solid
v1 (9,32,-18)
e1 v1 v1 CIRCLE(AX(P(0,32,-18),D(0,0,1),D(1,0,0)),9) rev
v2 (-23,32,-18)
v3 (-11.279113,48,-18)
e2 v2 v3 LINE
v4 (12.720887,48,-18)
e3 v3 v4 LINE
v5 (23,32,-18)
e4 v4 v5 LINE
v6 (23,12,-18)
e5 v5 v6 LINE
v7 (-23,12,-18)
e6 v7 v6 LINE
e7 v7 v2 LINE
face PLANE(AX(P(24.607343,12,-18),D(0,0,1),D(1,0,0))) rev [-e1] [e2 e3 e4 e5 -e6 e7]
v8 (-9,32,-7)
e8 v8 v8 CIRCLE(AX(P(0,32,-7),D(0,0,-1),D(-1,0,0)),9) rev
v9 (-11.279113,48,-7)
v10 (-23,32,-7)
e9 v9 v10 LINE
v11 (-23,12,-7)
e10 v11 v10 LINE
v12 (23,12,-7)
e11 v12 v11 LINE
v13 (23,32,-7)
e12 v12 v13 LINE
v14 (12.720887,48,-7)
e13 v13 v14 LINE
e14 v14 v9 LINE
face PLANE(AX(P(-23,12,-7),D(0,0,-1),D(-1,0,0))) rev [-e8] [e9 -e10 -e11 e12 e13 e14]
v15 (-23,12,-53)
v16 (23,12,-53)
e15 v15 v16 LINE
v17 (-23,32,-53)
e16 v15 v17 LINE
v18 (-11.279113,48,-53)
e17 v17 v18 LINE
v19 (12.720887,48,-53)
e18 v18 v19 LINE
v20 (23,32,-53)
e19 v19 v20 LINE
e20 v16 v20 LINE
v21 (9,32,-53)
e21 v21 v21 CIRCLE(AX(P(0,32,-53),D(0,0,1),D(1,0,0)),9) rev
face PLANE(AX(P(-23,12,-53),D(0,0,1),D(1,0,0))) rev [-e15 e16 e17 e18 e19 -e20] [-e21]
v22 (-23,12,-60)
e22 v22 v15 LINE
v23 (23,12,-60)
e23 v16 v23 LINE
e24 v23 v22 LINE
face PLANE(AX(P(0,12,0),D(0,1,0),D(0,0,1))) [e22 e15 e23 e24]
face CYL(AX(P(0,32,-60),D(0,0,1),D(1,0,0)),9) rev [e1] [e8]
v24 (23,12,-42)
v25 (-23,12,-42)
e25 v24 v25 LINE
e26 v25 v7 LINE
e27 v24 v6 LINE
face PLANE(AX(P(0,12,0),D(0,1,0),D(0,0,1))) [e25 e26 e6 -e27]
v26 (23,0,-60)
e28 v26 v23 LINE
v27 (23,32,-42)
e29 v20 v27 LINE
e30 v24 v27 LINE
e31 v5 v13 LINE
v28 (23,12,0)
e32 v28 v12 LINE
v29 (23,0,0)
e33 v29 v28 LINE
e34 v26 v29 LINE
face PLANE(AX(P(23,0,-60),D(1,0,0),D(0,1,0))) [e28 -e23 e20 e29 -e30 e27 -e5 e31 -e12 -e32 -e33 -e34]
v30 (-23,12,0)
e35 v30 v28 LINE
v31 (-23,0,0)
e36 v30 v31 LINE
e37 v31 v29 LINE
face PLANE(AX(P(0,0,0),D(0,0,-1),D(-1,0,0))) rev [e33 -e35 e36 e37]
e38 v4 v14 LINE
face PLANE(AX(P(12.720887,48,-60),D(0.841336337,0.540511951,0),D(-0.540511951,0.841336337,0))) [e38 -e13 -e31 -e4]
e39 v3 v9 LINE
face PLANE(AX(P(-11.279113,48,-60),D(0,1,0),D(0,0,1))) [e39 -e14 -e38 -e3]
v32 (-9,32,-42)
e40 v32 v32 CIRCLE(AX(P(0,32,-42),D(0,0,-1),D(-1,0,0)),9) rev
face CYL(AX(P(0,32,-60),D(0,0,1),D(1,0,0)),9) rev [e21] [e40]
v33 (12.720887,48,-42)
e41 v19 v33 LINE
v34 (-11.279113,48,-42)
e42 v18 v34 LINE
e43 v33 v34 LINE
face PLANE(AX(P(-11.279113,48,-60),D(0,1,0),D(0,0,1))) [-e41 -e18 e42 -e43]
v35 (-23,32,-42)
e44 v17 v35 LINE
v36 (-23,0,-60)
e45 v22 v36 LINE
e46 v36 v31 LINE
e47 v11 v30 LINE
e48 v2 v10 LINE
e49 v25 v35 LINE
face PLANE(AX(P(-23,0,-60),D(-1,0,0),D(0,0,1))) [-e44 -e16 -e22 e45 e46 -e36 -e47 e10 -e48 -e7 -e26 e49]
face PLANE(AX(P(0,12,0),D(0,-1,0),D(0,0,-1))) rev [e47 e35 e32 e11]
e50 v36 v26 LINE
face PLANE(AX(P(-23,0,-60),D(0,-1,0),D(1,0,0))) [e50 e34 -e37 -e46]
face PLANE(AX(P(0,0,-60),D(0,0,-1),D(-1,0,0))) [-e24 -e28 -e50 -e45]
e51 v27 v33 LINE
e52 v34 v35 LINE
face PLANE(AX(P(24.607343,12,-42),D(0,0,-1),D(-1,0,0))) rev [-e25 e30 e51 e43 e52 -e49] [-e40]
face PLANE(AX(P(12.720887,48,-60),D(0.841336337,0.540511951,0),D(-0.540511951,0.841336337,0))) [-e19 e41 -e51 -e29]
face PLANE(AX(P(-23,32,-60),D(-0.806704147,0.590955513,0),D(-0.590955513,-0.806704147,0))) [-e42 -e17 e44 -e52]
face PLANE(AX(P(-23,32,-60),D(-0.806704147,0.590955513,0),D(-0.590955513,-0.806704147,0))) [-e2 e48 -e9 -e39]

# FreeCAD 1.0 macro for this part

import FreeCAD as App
import Part
import Sketcher
from FreeCAD import Vector
Q = App.Units.Quantity

doc = App.newDocument("Part")
params = doc.addObject("Spreadsheet::Sheet", "Params")
for row, (alias, value) in enumerate([
    ("sketch1_diameter", "18 mm"),
    ("sketch1_width", "46 mm"),
    ("sketch1_width2", "24 mm"),
    ("sketch1_height", "32 mm"),
    ("pad1_length", "60 mm"),
    ("sketch2_width", "46 mm"),
    ("sketch2_height", "7 mm"),
    ("pocket1_length", "36 mm"),
    ("sketch3_height", "24 mm"),
    ("pocket2_length", "36 mm"),
], start=1):
    params.set(f"A{row}", alias)
    params.set(f"B{row}", "=" + value)
    params.setAlias(f"B{row}", alias)

body = doc.addObject("PartDesign::Body", "Body")

sketch1 = body.newObject("Sketcher::SketchObject", "Sketch")
sketch1.AttachmentSupport = (doc.getObject("XY_Plane"), [""])
sketch1.MapMode = "FlatFace"
sketch1.addGeometry(Part.LineSegment(Vector(-23, 0, 0), Vector(23, 0, 0)), False)
sketch1.addGeometry(Part.LineSegment(Vector(23, 0, 0), Vector(23, 32, 0)), False)
sketch1.addGeometry(Part.LineSegment(Vector(23, 32, 0), Vector(12.720887, 48, 0)), False)
sketch1.addGeometry(Part.LineSegment(Vector(12.720887, 48, 0), Vector(-11.279113, 48, 0)), False)
sketch1.addGeometry(Part.LineSegment(Vector(-11.279113, 48, 0), Vector(-23, 32, 0)), False)
sketch1.addGeometry(Part.LineSegment(Vector(-23, 32, 0), Vector(-23, 0, 0)), False)
sketch1.addGeometry(Part.Circle(Vector(0, 32, 0), Vector(0, 0, 1), 9), False)
sketch1.addConstraint(Sketcher.Constraint("Coincident", 0, 2, 1, 1))
sketch1.addConstraint(Sketcher.Constraint("Coincident", 1, 2, 2, 1))
sketch1.addConstraint(Sketcher.Constraint("Coincident", 2, 2, 3, 1))
sketch1.addConstraint(Sketcher.Constraint("Coincident", 3, 2, 4, 1))
sketch1.addConstraint(Sketcher.Constraint("Coincident", 4, 2, 5, 1))
sketch1.addConstraint(Sketcher.Constraint("Coincident", 5, 2, 0, 1))
sketch1.addConstraint(Sketcher.Constraint("Horizontal", 0))
sketch1.addConstraint(Sketcher.Constraint("Vertical", 1))
sketch1.addConstraint(Sketcher.Constraint("Horizontal", 3))
sketch1.addConstraint(Sketcher.Constraint("Vertical", 5))
sketch1.addConstraint(Sketcher.Constraint("Symmetric", 0, 2, 5, 2, -1, 1))
sketch1.addConstraint(Sketcher.Constraint("PointOnObject", 6, 3, -2))
sketch1.addConstraint(Sketcher.Constraint("Horizontal", 6, 3, 1, 2))
sketch1.addConstraint(Sketcher.Constraint("Horizontal", 1, 2, 4, 2))
sketch1.addConstraint(Sketcher.Constraint("Diameter", 6, Q("18 mm")))
sketch1.addConstraint(Sketcher.Constraint("DistanceX", 0, 1, 0, 2, Q("46 mm")))
sketch1.addConstraint(Sketcher.Constraint("DistanceX", 3, 2, 3, 1, Q("24 mm")))
sketch1.addConstraint(Sketcher.Constraint("DistanceY", 1, 1, 1, 2, Q("32 mm")))
sketch1.addConstraint(Sketcher.Constraint("DistanceY", -1, 1, 2, 2, Q("48 mm")))
sketch1.addConstraint(Sketcher.Constraint("Distance", 4, Q("19.833789 mm")))
sketch1.setExpression("Constraints[14]", "Params.sketch1_diameter")
sketch1.setExpression("Constraints[15]", "Params.sketch1_width")
sketch1.setExpression("Constraints[16]", "Params.sketch1_width2")
sketch1.setExpression("Constraints[17]", "Params.sketch1_height")
pad1 = body.newObject("PartDesign::Pad", "Pad")
pad1.Profile = sketch1
pad1.setExpression("Length", "Params.pad1_length")
pad1.Reversed = True

sketch2 = body.newObject("Sketcher::SketchObject", "Sketch001")
sketch2.AttachmentSupport = (doc.getObject("XZ_Plane"), [""])
sketch2.MapMode = "FlatFace"
sketch2.AttachmentOffset = App.Placement(Vector(0, 0, -48), App.Rotation())
sketch2.addGeometry(Part.LineSegment(Vector(-23, -7, 0), Vector(-23, 0, 0)), False)
sketch2.addGeometry(Part.LineSegment(Vector(-23, 0, 0), Vector(23, 0, 0)), False)
sketch2.addGeometry(Part.LineSegment(Vector(23, 0, 0), Vector(23, -7, 0)), False)
sketch2.addGeometry(Part.LineSegment(Vector(23, -7, 0), Vector(-23, -7, 0)), False)
sketch2.addGeometry(Part.LineSegment(Vector(-23, -60, 0), Vector(-23, -53, 0)), False)
sketch2.addGeometry(Part.LineSegment(Vector(-23, -53, 0), Vector(23, -53, 0)), False)
sketch2.addGeometry(Part.LineSegment(Vector(23, -53, 0), Vector(23, -60, 0)), False)
sketch2.addGeometry(Part.LineSegment(Vector(23, -60, 0), Vector(-23, -60, 0)), False)
sketch2.addConstraint(Sketcher.Constraint("Coincident", 0, 2, 1, 1))
sketch2.addConstraint(Sketcher.Constraint("Coincident", 1, 2, 2, 1))
sketch2.addConstraint(Sketcher.Constraint("Coincident", 2, 2, 3, 1))
sketch2.addConstraint(Sketcher.Constraint("Coincident", 3, 2, 0, 1))
sketch2.addConstraint(Sketcher.Constraint("Coincident", 4, 2, 5, 1))
sketch2.addConstraint(Sketcher.Constraint("Coincident", 5, 2, 6, 1))
sketch2.addConstraint(Sketcher.Constraint("Coincident", 6, 2, 7, 1))
sketch2.addConstraint(Sketcher.Constraint("Coincident", 7, 2, 4, 1))
sketch2.addConstraint(Sketcher.Constraint("Vertical", 0))
sketch2.addConstraint(Sketcher.Constraint("Horizontal", 1))
sketch2.addConstraint(Sketcher.Constraint("Vertical", 2))
sketch2.addConstraint(Sketcher.Constraint("Horizontal", 3))
sketch2.addConstraint(Sketcher.Constraint("Vertical", 4))
sketch2.addConstraint(Sketcher.Constraint("Horizontal", 5))
sketch2.addConstraint(Sketcher.Constraint("Vertical", 6))
sketch2.addConstraint(Sketcher.Constraint("Horizontal", 7))
sketch2.addConstraint(Sketcher.Constraint("Symmetric", 0, 2, 1, 2, -1, 1))
sketch2.addConstraint(Sketcher.Constraint("Vertical", 3, 2, 4, 2))
sketch2.addConstraint(Sketcher.Constraint("Vertical", 2, 2, 5, 2))
sketch2.addConstraint(Sketcher.Constraint("Equal", 2, 4))
sketch2.addConstraint(Sketcher.Constraint("DistanceX", 1, 1, 1, 2, Q("46 mm")))
sketch2.addConstraint(Sketcher.Constraint("DistanceY", 0, 1, 0, 2, Q("7 mm")))
sketch2.addConstraint(Sketcher.Constraint("DistanceY", 4, 2, -1, 1, Q("53 mm")))
sketch2.setExpression("Constraints[20]", "Params.sketch2_width")
sketch2.setExpression("Constraints[21]", "Params.sketch2_height")
pocket1 = body.newObject("PartDesign::Pocket", "Pocket")
pocket1.Profile = sketch2
pocket1.setExpression("Length", "Params.pocket1_length")
pocket1.Reversed = True

sketch3 = body.newObject("Sketcher::SketchObject", "Sketch002")
sketch3.AttachmentSupport = (doc.getObject("XZ_Plane"), [""])
sketch3.MapMode = "FlatFace"
sketch3.AttachmentOffset = App.Placement(Vector(0, 0, -48), App.Rotation())
sketch3.addGeometry(Part.LineSegment(Vector(-23, -42, 0), Vector(-23, -18, 0)), False)
sketch3.addGeometry(Part.LineSegment(Vector(-23, -18, 0), Vector(24.607343, -18, 0)), False)
sketch3.addGeometry(Part.LineSegment(Vector(24.607343, -18, 0), Vector(24.607343, -42, 0)), False)
sketch3.addGeometry(Part.LineSegment(Vector(24.607343, -42, 0), Vector(-23, -42, 0)), False)
sketch3.addConstraint(Sketcher.Constraint("Coincident", 0, 2, 1, 1))
sketch3.addConstraint(Sketcher.Constraint("Coincident", 1, 2, 2, 1))
sketch3.addConstraint(Sketcher.Constraint("Coincident", 2, 2, 3, 1))
sketch3.addConstraint(Sketcher.Constraint("Coincident", 3, 2, 0, 1))
sketch3.addConstraint(Sketcher.Constraint("Vertical", 0))
sketch3.addConstraint(Sketcher.Constraint("Horizontal", 1))
sketch3.addConstraint(Sketcher.Constraint("Vertical", 2))
sketch3.addConstraint(Sketcher.Constraint("Horizontal", 3))
sketch3.addConstraint(Sketcher.Constraint("DistanceY", 0, 1, 0, 2, Q("24 mm")))
sketch3.addConstraint(Sketcher.Constraint("DistanceX", 0, 2, -1, 1, Q("23 mm")))
sketch3.addConstraint(Sketcher.Constraint("DistanceY", 0, 2, -1, 1, Q("18 mm")))
sketch3.addConstraint(Sketcher.Constraint("DistanceX", 1, 1, 1, 2, Q("47.607343 mm")))
sketch3.setExpression("Constraints[8]", "Params.sketch3_height")
pocket2 = body.newObject("PartDesign::Pocket", "Pocket001")
pocket2.Profile = sketch3
pocket2.setExpression("Length", "Params.pocket2_length")
pocket2.Reversed = True

doc.recompute()
